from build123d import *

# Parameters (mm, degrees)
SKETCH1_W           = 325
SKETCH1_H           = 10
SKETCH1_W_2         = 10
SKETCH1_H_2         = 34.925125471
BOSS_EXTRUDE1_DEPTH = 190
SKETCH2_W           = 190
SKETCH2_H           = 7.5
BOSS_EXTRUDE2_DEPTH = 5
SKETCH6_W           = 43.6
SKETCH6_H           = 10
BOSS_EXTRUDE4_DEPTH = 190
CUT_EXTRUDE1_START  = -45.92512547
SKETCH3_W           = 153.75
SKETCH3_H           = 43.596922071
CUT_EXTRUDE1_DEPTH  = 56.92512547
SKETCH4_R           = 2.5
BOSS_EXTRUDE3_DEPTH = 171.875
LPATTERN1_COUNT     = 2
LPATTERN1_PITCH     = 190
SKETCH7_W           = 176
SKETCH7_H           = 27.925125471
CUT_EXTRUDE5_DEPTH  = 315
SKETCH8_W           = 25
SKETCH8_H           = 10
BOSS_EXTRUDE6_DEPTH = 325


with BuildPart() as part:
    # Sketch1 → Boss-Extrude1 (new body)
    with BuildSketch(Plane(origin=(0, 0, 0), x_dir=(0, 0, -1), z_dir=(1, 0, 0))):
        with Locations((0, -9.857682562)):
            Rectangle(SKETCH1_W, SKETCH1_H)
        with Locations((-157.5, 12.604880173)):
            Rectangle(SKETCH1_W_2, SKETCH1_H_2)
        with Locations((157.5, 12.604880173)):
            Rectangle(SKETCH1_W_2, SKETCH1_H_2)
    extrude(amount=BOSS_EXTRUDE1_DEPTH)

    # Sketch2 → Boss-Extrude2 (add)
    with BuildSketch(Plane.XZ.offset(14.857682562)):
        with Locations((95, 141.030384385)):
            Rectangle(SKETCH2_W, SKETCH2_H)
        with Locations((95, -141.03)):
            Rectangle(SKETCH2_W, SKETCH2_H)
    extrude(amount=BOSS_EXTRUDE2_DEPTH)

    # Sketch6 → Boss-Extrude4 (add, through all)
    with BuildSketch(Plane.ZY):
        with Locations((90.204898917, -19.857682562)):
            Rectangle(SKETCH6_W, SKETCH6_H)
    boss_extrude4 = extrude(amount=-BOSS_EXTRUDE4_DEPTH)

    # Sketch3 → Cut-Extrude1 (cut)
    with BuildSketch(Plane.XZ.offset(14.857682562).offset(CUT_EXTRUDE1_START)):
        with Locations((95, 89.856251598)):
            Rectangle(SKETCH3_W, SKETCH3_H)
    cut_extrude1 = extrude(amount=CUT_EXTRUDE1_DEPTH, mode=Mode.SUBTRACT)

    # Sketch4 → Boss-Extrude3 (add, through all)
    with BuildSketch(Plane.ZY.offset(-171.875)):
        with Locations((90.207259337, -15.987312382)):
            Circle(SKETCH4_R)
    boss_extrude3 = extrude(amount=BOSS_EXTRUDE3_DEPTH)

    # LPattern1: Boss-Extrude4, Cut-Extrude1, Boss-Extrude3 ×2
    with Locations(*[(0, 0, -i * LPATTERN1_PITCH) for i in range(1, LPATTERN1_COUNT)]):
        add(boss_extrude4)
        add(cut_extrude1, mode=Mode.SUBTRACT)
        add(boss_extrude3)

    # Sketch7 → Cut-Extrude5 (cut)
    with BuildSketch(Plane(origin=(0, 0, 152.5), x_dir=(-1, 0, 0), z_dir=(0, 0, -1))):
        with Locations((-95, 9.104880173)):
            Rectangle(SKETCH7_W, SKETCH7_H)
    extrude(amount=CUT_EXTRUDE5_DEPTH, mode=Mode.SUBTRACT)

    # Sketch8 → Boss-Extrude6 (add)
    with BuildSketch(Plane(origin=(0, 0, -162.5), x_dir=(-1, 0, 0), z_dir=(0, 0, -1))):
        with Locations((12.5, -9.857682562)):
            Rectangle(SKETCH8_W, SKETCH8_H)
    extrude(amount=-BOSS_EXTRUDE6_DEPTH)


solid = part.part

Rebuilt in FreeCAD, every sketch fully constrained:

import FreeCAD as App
import Part
import Sketcher

V = App.Vector


def add_polygon(sketch, points):
    """Adds a closed chain of lines whose ends are joined by coincident constraints."""
    first, n = sketch.GeometryCount, len(points)
    for a, b in zip(points, points[1:] + points[:1]):
        sketch.addGeometry(Part.LineSegment(App.Vector(*a, 0), App.Vector(*b, 0)), False)
    for i in range(n):
        sketch.addConstraint(Sketcher.Constraint("Coincident", first + i, 2, first + (i + 1) % n, 1))

doc = App.newDocument("Part")
body = doc.addObject("PartDesign::Body", "Body")

# Sketch on YZ plane
sketch1 = body.newObject("Sketcher::SketchObject", "Sketch")
sketch1.AttachmentSupport = (doc.getObject("YZ_Plane"), [""])
sketch1.MapMode = "FlatFace"
add_polygon(sketch1, [(-14.857683, 162.5), (-14.857683, -162.5), (30.067443, -162.5), (30.067443, -152.5), (-4.857683, -152.5), (-4.857683, 152.5), (30.067443, 152.5), (30.067443, 162.5)])  # lines 0-7
sketch1.addConstraint([
    Sketcher.Constraint("Vertical", 0),
    Sketcher.Constraint("Horizontal", 1),
    Sketcher.Constraint("Vertical", 2),
    Sketcher.Constraint("Horizontal", 3),
    Sketcher.Constraint("Vertical", 4),
    Sketcher.Constraint("Horizontal", 5),
    Sketcher.Constraint("Vertical", 6),
    Sketcher.Constraint("Horizontal", 7),
    Sketcher.Constraint("Symmetric", 2, 2, 5, 2, -1),
    Sketcher.Constraint("Equal", 2, 6),
    Sketcher.Constraint("DistanceY", 0, 2, 0, 1, 325.0),
    Sketcher.Constraint("DistanceY", 2, 1, 2, 2, 10.0),
    Sketcher.Constraint("DistanceX", 0, 2, 3, 2, 10.0),
    Sketcher.Constraint("DistanceX", 1, 1, 1, 2, 44.925125),
    Sketcher.Constraint("DistanceX", 0, 2, -1, 1, 14.857683),
])
pad1 = body.newObject("PartDesign::Pad", "Pad")
pad1.Profile = sketch1
pad1.Length = 190

# Sketch on XZ plane
sketch2 = body.newObject("Sketcher::SketchObject", "Sketch001")
sketch2.AttachmentSupport = (doc.getObject("XZ_Plane"), [""])
sketch2.MapMode = "FlatFace"
sketch2.AttachmentOffset = App.Placement(V(0, 0, 14.857683), App.Rotation())
add_polygon(sketch2, [(0, 144.780384), (0, 137.280384), (190, 137.280384), (190, 144.780384)])  # lines 0-3
add_polygon(sketch2, [(0, -137.28), (0, -144.78), (190, -144.78), (190, -137.28)])  # lines 4-7
sketch2.addConstraint([
    Sketcher.Constraint("Vertical", 0),
    Sketcher.Constraint("Horizontal", 1),
    Sketcher.Constraint("Vertical", 2),
    Sketcher.Constraint("Horizontal", 3),
    Sketcher.Constraint("Vertical", 4),
    Sketcher.Constraint("Horizontal", 5),
    Sketcher.Constraint("Vertical", 6),
    Sketcher.Constraint("Horizontal", 7),
    Sketcher.Constraint("PointOnObject", 0, 2, -2),
    Sketcher.Constraint("PointOnObject", 4, 2, -2),
    Sketcher.Constraint("Vertical", 2, 2, 5, 2),
    Sketcher.Constraint("Equal", 2, 4),
    Sketcher.Constraint("DistanceX", 1, 1, 1, 2, 190.0),
    Sketcher.Constraint("DistanceY", 0, 2, 0, 1, 7.5),
    Sketcher.Constraint("DistanceY", 4, 2, -1, 1, 144.78),
    Sketcher.Constraint("DistanceY", -1, 1, 0, 2, 137.280384),
])
pad2 = body.newObject("PartDesign::Pad", "Pad001")
pad2.Profile = sketch2
pad2.Length = 5

# Sketch on YZ plane
sketch3 = body.newObject("Sketcher::SketchObject", "Sketch002")
sketch3.AttachmentSupport = (doc.getObject("YZ_Plane"), [""])
sketch3.MapMode = "FlatFace"
add_polygon(sketch3, [(-14.857683, 68.404899), (-24.857683, 68.404899), (-24.857683, 112.004899), (-14.857683, 112.004899)])  # lines 0-3
sketch3.addConstraint([
    Sketcher.Constraint("Horizontal", 0),
    Sketcher.Constraint("Vertical", 1),
    Sketcher.Constraint("Horizontal", 2),
    Sketcher.Constraint("Vertical", 3),
    Sketcher.Constraint("DistanceX", 0, 2, 0, 1, 10.0),
    Sketcher.Constraint("DistanceY", 1, 1, 1, 2, 43.6),
    Sketcher.Constraint("DistanceY", -1, 1, 0, 2, 68.404899),
    Sketcher.Constraint("DistanceX", 0, 2, -1, 1, 24.857683),
])
pad3 = body.newObject("PartDesign::Pad", "Pad002")
pad3.Profile = sketch3
pad3.Length = 190

# Sketch on XZ plane
sketch4 = body.newObject("Sketcher::SketchObject", "Sketch003")
sketch4.AttachmentSupport = (doc.getObject("XZ_Plane"), [""])
sketch4.MapMode = "FlatFace"
sketch4.AttachmentOffset = App.Placement(V(0, 0, -31.067443), App.Rotation())
add_polygon(sketch4, [(18.125, 111.654713), (18.125, 68.057791), (171.875, 68.057791), (171.875, 111.654713)])  # lines 0-3
sketch4.addConstraint([
    Sketcher.Constraint("Vertical", 0),
    Sketcher.Constraint("Horizontal", 1),
    Sketcher.Constraint("Vertical", 2),
    Sketcher.Constraint("Horizontal", 3),
    Sketcher.Constraint("DistanceX", 1, 1, 1, 2, 153.75),
    Sketcher.Constraint("DistanceX", -1, 1, 0, 2, 18.125),
    Sketcher.Constraint("DistanceY", 0, 2, 0, 1, 43.596922),
    Sketcher.Constraint("DistanceY", -1, 1, 0, 2, 68.057791),
])
pocket1 = body.newObject("PartDesign::Pocket", "Pocket")
pocket1.Profile = sketch4
pocket1.Length = 56.925125
pocket1.Reversed = True

# Sketch on YZ plane
sketch5 = body.newObject("Sketcher::SketchObject", "Sketch004")
sketch5.AttachmentSupport = (doc.getObject("YZ_Plane"), [""])
sketch5.MapMode = "FlatFace"
sketch5.AttachmentOffset = App.Placement(V(0, 0, 171.875), App.Rotation())
sketch5.addGeometry(Part.Circle(V(-15.987312, 90.207259, 0), V(0, 0, 1), 2.5), False)
sketch5.addConstraint([
    Sketcher.Constraint("Diameter", 0, 5.0),
    Sketcher.Constraint("DistanceY", -1, 1, 0, 3, 90.207259),
    Sketcher.Constraint("DistanceX", 0, 3, -1, 1, 15.987312),
])
pad4 = body.newObject("PartDesign::Pad", "Pad003")
pad4.Profile = sketch5
pad4.Type = "UpToLast"
pad4.Reversed = True
doc.recompute()

linearpattern = body.newObject("PartDesign::LinearPattern", "LinearPattern")
linearpattern.Originals = [pad3, pocket1, pad4]
linearpattern.Direction = (doc.getObject("Z_Axis"), [""])
linearpattern.Mode = "offset"
linearpattern.Offset = 190
linearpattern.Occurrences = 2
linearpattern.Reversed = True
body.Tip = linearpattern

# Sketch on XY plane
sketch6 = body.newObject("Sketcher::SketchObject", "Sketch005")
sketch6.AttachmentSupport = (doc.getObject("XY_Plane"), [""])
sketch6.MapMode = "FlatFace"
sketch6.AttachmentOffset = App.Placement(V(0, 0, 152.5), App.Rotation())
add_polygon(sketch6, [(183, 23.067443), (183, -4.857683), (7, -4.857683), (7, 23.067443)])  # lines 0-3
sketch6.addConstraint([
    Sketcher.Constraint("Vertical", 0),
    Sketcher.Constraint("Horizontal", 1),
    Sketcher.Constraint("Vertical", 2),
    Sketcher.Constraint("Horizontal", 3),
    Sketcher.Constraint("DistanceX", 1, 2, 1, 1, 176.0),
    Sketcher.Constraint("DistanceX", -1, 1, 0, 2, 183.0),
    Sketcher.Constraint("DistanceY", 0, 2, 0, 1, 27.925125),
    Sketcher.Constraint("DistanceY", 0, 2, -1, 1, 4.857683),
])
pocket2 = body.newObject("PartDesign::Pocket", "Pocket001")
pocket2.Profile = sketch6
pocket2.Length = 315

# Sketch on XY plane
sketch7 = body.newObject("Sketcher::SketchObject", "Sketch006")
sketch7.AttachmentSupport = (doc.getObject("XY_Plane"), [""])
sketch7.MapMode = "FlatFace"
sketch7.AttachmentOffset = App.Placement(V(0, 0, -162.5), App.Rotation())
add_polygon(sketch7, [(0, -4.857683), (0, -14.857683), (-25, -14.857683), (-25, -4.857683)])  # lines 0-3
sketch7.addConstraint([
    Sketcher.Constraint("Vertical", 0),
    Sketcher.Constraint("Horizontal", 1),
    Sketcher.Constraint("Vertical", 2),
    Sketcher.Constraint("Horizontal", 3),
    Sketcher.Constraint("PointOnObject", 0, 2, -2),
    Sketcher.Constraint("DistanceX", 1, 2, 1, 1, 25.0),
    Sketcher.Constraint("DistanceY", 0, 2, 0, 1, 10.0),
    Sketcher.Constraint("DistanceY", 0, 2, -1, 1, 14.857683),
])
pad5 = body.newObject("PartDesign::Pad", "Pad004")
pad5.Profile = sketch7
pad5.Length = 325

doc.recompute()
